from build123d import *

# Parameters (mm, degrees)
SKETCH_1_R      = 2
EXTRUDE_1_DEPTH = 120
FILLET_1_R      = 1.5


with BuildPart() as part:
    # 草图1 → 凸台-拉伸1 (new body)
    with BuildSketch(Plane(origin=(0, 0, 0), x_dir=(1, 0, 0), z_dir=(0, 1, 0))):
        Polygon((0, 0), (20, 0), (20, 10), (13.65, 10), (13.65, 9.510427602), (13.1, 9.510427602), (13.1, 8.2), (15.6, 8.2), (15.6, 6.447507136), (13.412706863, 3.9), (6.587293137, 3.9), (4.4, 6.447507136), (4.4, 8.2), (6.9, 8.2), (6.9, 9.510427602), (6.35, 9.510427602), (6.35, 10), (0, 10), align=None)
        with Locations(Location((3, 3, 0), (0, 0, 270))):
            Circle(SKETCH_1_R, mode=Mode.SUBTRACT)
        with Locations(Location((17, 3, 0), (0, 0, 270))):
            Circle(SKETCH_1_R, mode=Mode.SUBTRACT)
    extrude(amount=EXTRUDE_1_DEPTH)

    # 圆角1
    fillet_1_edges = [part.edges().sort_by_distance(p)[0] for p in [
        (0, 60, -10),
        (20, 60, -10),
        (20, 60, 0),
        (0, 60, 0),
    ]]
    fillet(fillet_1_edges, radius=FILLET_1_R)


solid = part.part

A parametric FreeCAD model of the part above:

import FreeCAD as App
import Part
import Sketcher
Q = App.Units.Quantity


def edges_at(feature, points):
    """Names of the edges that pass closest to the given points."""
    edges = feature.Shape.Edges
    near = lambda p: min(range(len(edges)), key=lambda i: edges[i].distToShape(Part.Vertex(*p))[0])
    return sorted({f"Edge{near(p) + 1}" for p in points})


def add_polygon(sketch, points):
    """Adds a closed chain of lines whose ends are joined by coincident constraints."""
    first, n = sketch.GeometryCount, len(points)
    for a, b in zip(points, points[1:] + points[:1]):
        sketch.addGeometry(Part.LineSegment(App.Vector(*a, 0), App.Vector(*b, 0)), False)
    for i in range(n):
        sketch.addConstraint(Sketcher.Constraint("Coincident", first + i, 2, first + (i + 1) % n, 1))

doc = App.newDocument("Part")
body = doc.addObject("PartDesign::Body", "Body")

sketch1 = doc.addObject("Sketcher::SketchObject", "Sketch")
body.addObject(sketch1)
sketch1.AttachmentSupport = (doc.XZ_Plane, [""])
sketch1.MapMode = "FlatFace"
add_polygon(sketch1, [(0, 0), (20, 0), (20, -10), (13.65, -10), (13.65, -9.51), (13.1, -9.51), (13.1, -8.2), (15.6, -8.2), (15.6, -6.45), (13.41, -3.9), (6.59, -3.9), (4.4, -6.45), (4.4, -8.2), (6.9, -8.2), (6.9, -9.51), (6.35, -9.51), (6.35, -10), (0, -10)])
sketch1.addGeometry(Part.Circle(App.Vector(3, -3, 0), App.Vector(0, 0, 1), 2), False)
sketch1.addGeometry(Part.Circle(App.Vector(17, -3, 0), App.Vector(0, 0, 1), 2), False)
sketch1.addConstraint([
    Sketcher.Constraint("Horizontal", 0),
    Sketcher.Constraint("Vertical", 1),
    Sketcher.Constraint("Horizontal", 2),
    Sketcher.Constraint("Vertical", 3),
    Sketcher.Constraint("Horizontal", 4),
    Sketcher.Constraint("Vertical", 5),
    Sketcher.Constraint("Horizontal", 6),
    Sketcher.Constraint("Vertical", 7),
    Sketcher.Constraint("Horizontal", 9),
    Sketcher.Constraint("Vertical", 11),
    Sketcher.Constraint("Horizontal", 12),
    Sketcher.Constraint("Vertical", 13),
    Sketcher.Constraint("Horizontal", 14),
    Sketcher.Constraint("Vertical", 15),
    Sketcher.Constraint("Horizontal", 16),
    Sketcher.Constraint("Vertical", 17),
    Sketcher.Constraint("Coincident", 17, 2, -1, 1),
    Sketcher.Constraint("Equal", 18, 19),
    Sketcher.Constraint("Horizontal", 18, 3, 19, 3),
    Sketcher.Constraint("Horizontal", 7, 2, 10, 2),
    Sketcher.Constraint("Horizontal", 6, 2, 11, 2),
    Sketcher.Constraint("Horizontal", 4, 2, 13, 2),
    Sketcher.Constraint("Horizontal", 2, 2, 15, 2),
    Sketcher.Constraint("Equal", 6, 12),
    Sketcher.Constraint("Equal", 4, 14),
    Sketcher.Constraint("Equal", 2, 16),
    Sketcher.Constraint("Equal", 8, 10),
    Sketcher.Constraint("Diameter", 18, Q("4 mm")),
    Sketcher.Constraint("DistanceX", 0, 1, 0, 2, Q("20 mm")),
    Sketcher.Constraint("DistanceY", 1, 2, 1, 1, Q("10 mm")),
    Sketcher.Constraint("DistanceX", 6, 1, 6, 2, Q("2.5 mm")),
    Sketcher.Constraint("DistanceX", -1, 1, 18, 3, Q("3 mm")),
    Sketcher.Constraint("DistanceY", 18, 3, -1, 1, Q("3 mm")),
    Sketcher.Constraint("DistanceX", -1, 1, 19, 3, Q("17 mm")),
    Sketcher.Constraint("DistanceX", 2, 2, 2, 1, Q("6.35 mm")),
    Sketcher.Constraint("DistanceX", 4, 2, 4, 1, Q("0.55 mm")),
    Sketcher.Constraint("DistanceY", 5, 2, -1, 1, Q("8.2 mm")),
    Sketcher.Constraint("DistanceY", 8, 2, -1, 1, Q("3.9 mm")),
    Sketcher.Constraint("DistanceX", 9, 2, 9, 1, Q("6.825414 mm")),
    Sketcher.Constraint("DistanceY", 3, 1, 3, 2, Q("0.489572 mm")),
    Sketcher.Constraint("DistanceY", 7, 1, 7, 2, Q("1.752493 mm")),
])
pad1 = doc.addObject("PartDesign::Pad", "Pad")
body.addObject(pad1)
pad1.Profile = sketch1
pad1.Length = 120
pad1.Reversed = True
doc.recompute()

fillet = doc.addObject("PartDesign::Fillet", "Fillet")
body.addObject(fillet)
fillet.Base = (pad1, edges_at(pad1, [
    (0, 60, -10),
    (20, 60, -10),
    (20, 60, 0),
    (0, 60, 0),
]))
fillet.Radius = 1.5

doc.recompute()
